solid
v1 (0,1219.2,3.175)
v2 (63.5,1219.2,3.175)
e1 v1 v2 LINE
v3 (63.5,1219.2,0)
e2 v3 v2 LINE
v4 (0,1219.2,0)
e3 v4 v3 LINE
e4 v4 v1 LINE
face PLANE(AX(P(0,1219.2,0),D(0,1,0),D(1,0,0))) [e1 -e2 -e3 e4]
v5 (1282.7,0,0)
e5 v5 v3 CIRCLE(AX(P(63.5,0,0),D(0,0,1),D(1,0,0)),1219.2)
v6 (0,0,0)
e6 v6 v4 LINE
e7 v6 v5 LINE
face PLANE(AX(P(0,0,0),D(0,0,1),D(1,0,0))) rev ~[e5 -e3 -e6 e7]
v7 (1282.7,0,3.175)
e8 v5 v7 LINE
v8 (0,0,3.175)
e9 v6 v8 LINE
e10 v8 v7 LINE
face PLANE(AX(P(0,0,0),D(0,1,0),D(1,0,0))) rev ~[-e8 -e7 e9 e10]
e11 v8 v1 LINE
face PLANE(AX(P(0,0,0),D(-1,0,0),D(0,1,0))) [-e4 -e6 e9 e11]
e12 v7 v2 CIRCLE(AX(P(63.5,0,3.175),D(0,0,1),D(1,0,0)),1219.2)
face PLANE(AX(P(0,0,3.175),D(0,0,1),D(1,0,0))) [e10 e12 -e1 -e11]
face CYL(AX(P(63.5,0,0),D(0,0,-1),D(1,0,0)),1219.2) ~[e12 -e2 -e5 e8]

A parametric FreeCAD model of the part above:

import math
import FreeCAD as App
import Part
import Sketcher
Q = App.Units.Quantity

doc = App.newDocument("Part")
body = doc.addObject("PartDesign::Body", "Body")

sketch1 = body.newObject("Sketcher::SketchObject", "Sketch")
sketch1.AttachmentSupport = (doc.getObject("XY_Plane"), [""])
sketch1.MapMode = "FlatFace"
sketch1.addGeometry(Part.LineSegment(App.Vector(0, 1219.2, 0), App.Vector(0, 0, 0)), False)
sketch1.addGeometry(Part.LineSegment(App.Vector(0, 0, 0), App.Vector(1282.7, 0, 0)), False)
sketch1.addGeometry(Part.ArcOfCircle(Part.Circle(App.Vector(63.5, 0, 0), App.Vector(0, 0, 1), 1219.2), math.radians(0), math.radians(90)), False)
sketch1.addGeometry(Part.LineSegment(App.Vector(63.5, 1219.2, 0), App.Vector(0, 1219.2, 0)), False)
sketch1.addConstraint(Sketcher.Constraint("Coincident", 0, 2, 1, 1))
sketch1.addConstraint(Sketcher.Constraint("Coincident", 1, 2, 2, 1))
sketch1.addConstraint(Sketcher.Constraint("Tangent", 2, 2, 3, 1))
sketch1.addConstraint(Sketcher.Constraint("Coincident", 3, 2, 0, 1))
sketch1.addConstraint(Sketcher.Constraint("Vertical", 0))
sketch1.addConstraint(Sketcher.Constraint("Horizontal", 1))
sketch1.addConstraint(Sketcher.Constraint("Horizontal", 3))
sketch1.addConstraint(Sketcher.Constraint("Coincident", 0, 2, -1, 1))
sketch1.addConstraint(Sketcher.Constraint("PointOnObject", 2, 3, -1))
sketch1.addConstraint(Sketcher.Constraint("Radius", 2, Q("48 in")))
sketch1.addConstraint(Sketcher.Constraint("DistanceX", 1, 1, 1, 2, Q("50.5 in")))
pad1 = body.newObject("PartDesign::Pad", "Pad")
pad1.Profile = sketch1
pad1.Length = Q("0.125 in")

doc.recompute()
